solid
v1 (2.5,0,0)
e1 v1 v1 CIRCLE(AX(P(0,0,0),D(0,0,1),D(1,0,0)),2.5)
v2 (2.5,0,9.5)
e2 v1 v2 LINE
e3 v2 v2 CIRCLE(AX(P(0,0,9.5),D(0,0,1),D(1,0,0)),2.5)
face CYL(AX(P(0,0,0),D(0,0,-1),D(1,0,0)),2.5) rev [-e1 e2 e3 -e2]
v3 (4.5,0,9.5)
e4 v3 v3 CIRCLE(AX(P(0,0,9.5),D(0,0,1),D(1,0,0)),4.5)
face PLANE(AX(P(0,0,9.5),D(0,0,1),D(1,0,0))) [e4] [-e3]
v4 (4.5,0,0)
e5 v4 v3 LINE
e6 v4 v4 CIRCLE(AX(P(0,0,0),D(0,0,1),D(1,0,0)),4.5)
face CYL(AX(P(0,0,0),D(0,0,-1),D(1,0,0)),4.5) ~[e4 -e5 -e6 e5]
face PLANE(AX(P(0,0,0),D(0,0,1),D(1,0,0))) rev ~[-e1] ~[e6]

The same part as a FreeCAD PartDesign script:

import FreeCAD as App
import Part
import Sketcher

V = App.Vector
Q = App.Units.Quantity

doc = App.newDocument("Part")
body = doc.addObject("PartDesign::Body", "Body")

# Sketch on XY plane
sketch1 = doc.addObject("Sketcher::SketchObject", "Sketch")
body.addObject(sketch1)
sketch1.AttachmentSupport = (doc.XY_Plane, [""])
sketch1.MapMode = "FlatFace"
sketch1.addGeometry([
    Part.Circle(V(0, 0, 0), V(0, 0, 1), 4.5),
    Part.Circle(V(0, 0, 0), V(0, 0, 1), 2.5),
], False)
sketch1.addConstraint([
    Sketcher.Constraint("Coincident", 0, 3, -1, 1),
    Sketcher.Constraint("Coincident", 1, 3, -1, 1),
    Sketcher.Constraint("Diameter", 0, Q("9 mm")),
    Sketcher.Constraint("Diameter", 1, Q("5 mm")),
])
pad1 = doc.addObject("PartDesign::Pad", "Pad")
body.addObject(pad1)
pad1.Profile = sketch1
pad1.Length = 9.5

doc.recompute()
